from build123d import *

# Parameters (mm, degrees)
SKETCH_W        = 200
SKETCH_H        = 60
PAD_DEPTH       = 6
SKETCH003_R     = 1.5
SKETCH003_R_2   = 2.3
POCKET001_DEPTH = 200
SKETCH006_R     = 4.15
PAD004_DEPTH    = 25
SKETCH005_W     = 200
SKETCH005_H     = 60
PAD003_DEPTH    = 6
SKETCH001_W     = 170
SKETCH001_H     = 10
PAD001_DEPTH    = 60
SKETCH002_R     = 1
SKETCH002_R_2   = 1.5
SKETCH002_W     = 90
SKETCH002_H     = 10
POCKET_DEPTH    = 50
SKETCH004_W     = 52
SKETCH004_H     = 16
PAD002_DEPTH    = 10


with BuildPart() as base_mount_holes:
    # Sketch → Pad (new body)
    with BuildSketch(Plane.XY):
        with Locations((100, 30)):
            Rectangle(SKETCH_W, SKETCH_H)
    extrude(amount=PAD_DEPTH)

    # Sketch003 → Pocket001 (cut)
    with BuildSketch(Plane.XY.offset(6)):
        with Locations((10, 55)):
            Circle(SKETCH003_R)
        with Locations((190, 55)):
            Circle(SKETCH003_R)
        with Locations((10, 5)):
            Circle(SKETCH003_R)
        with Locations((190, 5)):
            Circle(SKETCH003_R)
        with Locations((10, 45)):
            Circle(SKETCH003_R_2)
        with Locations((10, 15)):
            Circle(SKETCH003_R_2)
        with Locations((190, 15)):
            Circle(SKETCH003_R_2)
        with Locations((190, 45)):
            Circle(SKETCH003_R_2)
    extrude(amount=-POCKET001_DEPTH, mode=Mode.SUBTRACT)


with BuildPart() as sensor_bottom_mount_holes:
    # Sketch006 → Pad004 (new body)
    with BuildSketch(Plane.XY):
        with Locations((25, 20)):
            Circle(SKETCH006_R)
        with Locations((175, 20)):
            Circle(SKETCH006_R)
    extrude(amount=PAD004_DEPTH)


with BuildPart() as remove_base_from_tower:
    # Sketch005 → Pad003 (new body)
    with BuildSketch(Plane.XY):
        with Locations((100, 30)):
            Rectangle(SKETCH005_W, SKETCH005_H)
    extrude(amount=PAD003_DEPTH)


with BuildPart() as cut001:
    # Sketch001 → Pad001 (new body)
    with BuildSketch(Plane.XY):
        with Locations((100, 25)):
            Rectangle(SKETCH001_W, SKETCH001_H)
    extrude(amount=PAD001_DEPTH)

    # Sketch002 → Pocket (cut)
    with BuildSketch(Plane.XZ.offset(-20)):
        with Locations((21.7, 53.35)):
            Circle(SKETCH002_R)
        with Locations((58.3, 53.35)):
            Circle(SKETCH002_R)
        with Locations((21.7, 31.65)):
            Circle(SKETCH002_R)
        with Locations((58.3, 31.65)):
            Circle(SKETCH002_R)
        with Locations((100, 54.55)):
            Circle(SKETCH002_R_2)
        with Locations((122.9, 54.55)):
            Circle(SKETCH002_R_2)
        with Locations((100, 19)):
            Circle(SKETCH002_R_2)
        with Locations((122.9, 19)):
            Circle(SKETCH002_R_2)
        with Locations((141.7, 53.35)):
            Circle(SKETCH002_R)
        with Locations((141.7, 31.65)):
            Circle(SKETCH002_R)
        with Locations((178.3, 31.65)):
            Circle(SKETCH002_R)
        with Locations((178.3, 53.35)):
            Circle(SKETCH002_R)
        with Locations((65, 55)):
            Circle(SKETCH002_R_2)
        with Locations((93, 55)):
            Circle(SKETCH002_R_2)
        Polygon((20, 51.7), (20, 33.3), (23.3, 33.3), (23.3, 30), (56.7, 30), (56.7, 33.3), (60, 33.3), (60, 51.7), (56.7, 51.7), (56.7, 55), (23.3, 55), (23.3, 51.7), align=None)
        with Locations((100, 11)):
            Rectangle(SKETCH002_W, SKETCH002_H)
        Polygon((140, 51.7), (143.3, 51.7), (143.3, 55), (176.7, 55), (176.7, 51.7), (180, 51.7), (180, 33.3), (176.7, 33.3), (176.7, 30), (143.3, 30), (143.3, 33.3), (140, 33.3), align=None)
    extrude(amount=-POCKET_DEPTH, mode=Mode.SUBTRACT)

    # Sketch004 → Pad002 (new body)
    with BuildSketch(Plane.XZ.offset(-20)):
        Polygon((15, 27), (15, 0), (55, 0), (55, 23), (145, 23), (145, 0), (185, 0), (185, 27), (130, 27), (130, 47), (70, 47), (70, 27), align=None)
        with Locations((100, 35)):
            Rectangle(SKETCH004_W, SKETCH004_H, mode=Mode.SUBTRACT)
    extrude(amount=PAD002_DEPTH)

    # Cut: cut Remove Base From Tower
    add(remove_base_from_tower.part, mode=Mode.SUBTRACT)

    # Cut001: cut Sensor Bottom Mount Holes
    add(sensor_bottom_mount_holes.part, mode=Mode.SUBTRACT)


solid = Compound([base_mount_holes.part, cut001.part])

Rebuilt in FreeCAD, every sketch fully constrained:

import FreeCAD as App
import Part
import Sketcher


def add_polygon(sketch, points):
    """Adds a closed chain of lines whose ends are joined by coincident constraints."""
    first, n = sketch.GeometryCount, len(points)
    for a, b in zip(points, points[1:] + points[:1]):
        sketch.addGeometry(Part.LineSegment(App.Vector(*a, 0), App.Vector(*b, 0)), False)
    for i in range(n):
        sketch.addConstraint(Sketcher.Constraint("Coincident", first + i, 2, first + (i + 1) % n, 1))

doc = App.newDocument("Part")
params = doc.addObject("Spreadsheet::Sheet", "Params")
for row, (alias, value) in enumerate([
    ("sketch1_width", "200 mm"),
    ("sketch1_height", "60 mm"),
    ("pad1_length", "6 mm"),
    ("sketch2_diameter", "3 mm"),
    ("sketch2_diameter2", "4.6 mm"),
    ("pocket1_length", "200 mm"),
    ("sketch3_diameter", "8.3 mm"),
    ("pad2_length", "25 mm"),
    ("sketch4_width", "200 mm"),
    ("sketch4_height", "60 mm"),
    ("pad3_length", "6 mm"),
    ("sketch5_width", "170 mm"),
    ("sketch5_height", "10 mm"),
    ("pad4_length", "60 mm"),
    ("sketch6_diameter", "2 mm"),
    ("sketch6_diameter2", "3 mm"),
    ("sketch6_width", "90 mm"),
    ("sketch6_height", "10 mm"),
    ("sketch6_width2", "3.3 mm"),
    ("pocket2_length", "50 mm"),
    ("sketch7_width", "40 mm"),
    ("sketch7_width2", "90 mm"),
    ("sketch7_width3", "55 mm"),
    ("sketch7_width4", "52 mm"),
    ("sketch7_height", "27 mm"),
    ("pad5_length", "10 mm"),
], start=1):
    params.set(f"A{row}", alias)
    params.set(f"B{row}", "=" + value)
    params.setAlias(f"B{row}", alias)

body = doc.addObject("PartDesign::Body", "Body")

sketch1 = doc.addObject("Sketcher::SketchObject", "Sketch")
body.addObject(sketch1)
sketch1.AttachmentSupport = (doc.XY_Plane, [""])
sketch1.MapMode = "FlatFace"
add_polygon(sketch1, [(0, 60), (0, 0), (200, 0), (200, 60)])
sketch1.addConstraint([
    Sketcher.Constraint("Vertical", 0),
    Sketcher.Constraint("Horizontal", 1),
    Sketcher.Constraint("Vertical", 2),
    Sketcher.Constraint("Horizontal", 3),
    Sketcher.Constraint("Coincident", 0, 2, -1, 1),
    Sketcher.Constraint("DistanceX", 1, 1, 1, 2, 200.0),
    Sketcher.Constraint("DistanceY", 0, 2, 0, 1, 60.0),
])
sketch1.setExpression("Constraints[9]", "Params.sketch1_width")
sketch1.setExpression("Constraints[10]", "Params.sketch1_height")
pad1 = doc.addObject("PartDesign::Pad", "Pad")
body.addObject(pad1)
pad1.Profile = sketch1
pad1.setExpression("Length", "Params.pad1_length")

sketch2 = doc.addObject("Sketcher::SketchObject", "Sketch001")
body.addObject(sketch2)
sketch2.AttachmentSupport = (doc.XY_Plane, [""])
sketch2.MapMode = "FlatFace"
sketch2.AttachmentOffset = App.Placement(App.Vector(0, 0, 6), App.Rotation())
sketch2.addGeometry([
    Part.Circle(App.Vector(10, 55, 0), App.Vector(0, 0, 1), 1.5),
    Part.Circle(App.Vector(190, 55, 0), App.Vector(0, 0, 1), 1.5),
    Part.Circle(App.Vector(10, 5, 0), App.Vector(0, 0, 1), 1.5),
    Part.Circle(App.Vector(190, 5, 0), App.Vector(0, 0, 1), 1.5),
    Part.Circle(App.Vector(10, 45, 0), App.Vector(0, 0, 1), 2.3),
    Part.Circle(App.Vector(10, 15, 0), App.Vector(0, 0, 1), 2.3),
    Part.Circle(App.Vector(190, 15, 0), App.Vector(0, 0, 1), 2.3),
    Part.Circle(App.Vector(190, 45, 0), App.Vector(0, 0, 1), 2.3),
], False)
sketch2.addConstraint([
    Sketcher.Constraint("Equal", 0, 1),
    Sketcher.Constraint("Equal", 1, 2),
    Sketcher.Constraint("Equal", 2, 3),
    Sketcher.Constraint("Equal", 4, 5),
    Sketcher.Constraint("Equal", 5, 6),
    Sketcher.Constraint("Equal", 6, 7),
    Sketcher.Constraint("Horizontal", 0, 3, 1, 3),
    Sketcher.Constraint("Horizontal", 2, 3, 3, 3),
    Sketcher.Constraint("Horizontal", 5, 3, 6, 3),
    Sketcher.Constraint("Horizontal", 4, 3, 7, 3),
    Sketcher.Constraint("Vertical", 0, 3, 2, 3),
    Sketcher.Constraint("Vertical", 1, 3, 3, 3),
    Sketcher.Constraint("Vertical", 2, 3, 4, 3),
    Sketcher.Constraint("Vertical", 4, 3, 5, 3),
    Sketcher.Constraint("Vertical", 3, 3, 6, 3),
    Sketcher.Constraint("Vertical", 6, 3, 7, 3),
    Sketcher.Constraint("Diameter", 0, 3.0),
    Sketcher.Constraint("Diameter", 4, 4.6),
    Sketcher.Constraint("DistanceX", -1, 1, 0, 3, 10.0),
    Sketcher.Constraint("DistanceY", -1, 1, 0, 3, 55.0),
    Sketcher.Constraint("DistanceX", -1, 1, 1, 3, 190.0),
    Sketcher.Constraint("DistanceY", -1, 1, 2, 3, 5.0),
    Sketcher.Constraint("DistanceY", -1, 1, 4, 3, 45.0),
    Sketcher.Constraint("DistanceY", -1, 1, 5, 3, 15.0),
])
sketch2.setExpression("Constraints[16]", "Params.sketch2_diameter")
sketch2.setExpression("Constraints[17]", "Params.sketch2_diameter2")
pocket1 = doc.addObject("PartDesign::Pocket", "Pocket")
body.addObject(pocket1)
pocket1.Profile = sketch2
pocket1.setExpression("Length", "Params.pocket1_length")
body2 = doc.addObject("PartDesign::Body", "Body001")
body2.AllowCompound = True

sketch3 = doc.addObject("Sketcher::SketchObject", "Sketch002")
body2.addObject(sketch3)
sketch3.AttachmentSupport = (doc.getObject("XY_Plane001"), [""])
sketch3.MapMode = "FlatFace"
sketch3.addGeometry([
    Part.Circle(App.Vector(25, 20, 0), App.Vector(0, 0, 1), 4.2),
    Part.Circle(App.Vector(175, 20, 0), App.Vector(0, 0, 1), 4.2),
], False)
sketch3.addConstraint([
    Sketcher.Constraint("Equal", 0, 1),
    Sketcher.Constraint("Horizontal", 0, 3, 1, 3),
    Sketcher.Constraint("Diameter", 0, 8.3),
    Sketcher.Constraint("DistanceX", -1, 1, 0, 3, 25.0),
    Sketcher.Constraint("DistanceY", -1, 1, 0, 3, 20.0),
    Sketcher.Constraint("DistanceX", -1, 1, 1, 3, 175.0),
])
sketch3.setExpression("Constraints[2]", "Params.sketch3_diameter")
pad2 = doc.addObject("PartDesign::Pad", "Pad001")
body2.addObject(pad2)
pad2.Profile = sketch3
pad2.setExpression("Length", "Params.pad2_length")
body3 = doc.addObject("PartDesign::Body", "Body002")

sketch4 = doc.addObject("Sketcher::SketchObject", "Sketch003")
body3.addObject(sketch4)
sketch4.AttachmentSupport = (doc.getObject("XY_Plane002"), [""])
sketch4.MapMode = "FlatFace"
add_polygon(sketch4, [(0, 60), (0, 0), (200, 0), (200, 60)])
sketch4.addConstraint([
    Sketcher.Constraint("Vertical", 0),
    Sketcher.Constraint("Horizontal", 1),
    Sketcher.Constraint("Vertical", 2),
    Sketcher.Constraint("Horizontal", 3),
    Sketcher.Constraint("Coincident", 0, 2, -1, 1),
    Sketcher.Constraint("DistanceX", 1, 1, 1, 2, 200.0),
    Sketcher.Constraint("DistanceY", 0, 2, 0, 1, 60.0),
])
sketch4.setExpression("Constraints[9]", "Params.sketch4_width")
sketch4.setExpression("Constraints[10]", "Params.sketch4_height")
pad3 = doc.addObject("PartDesign::Pad", "Pad002")
body3.addObject(pad3)
pad3.Profile = sketch4
pad3.setExpression("Length", "Params.pad3_length")
body4 = doc.addObject("PartDesign::Body", "Body003")

sketch5 = doc.addObject("Sketcher::SketchObject", "Sketch004")
body4.addObject(sketch5)
sketch5.AttachmentSupport = (doc.getObject("XY_Plane003"), [""])
sketch5.MapMode = "FlatFace"
add_polygon(sketch5, [(15, 30), (15, 20), (185, 20), (185, 30)])
sketch5.addConstraint([
    Sketcher.Constraint("Vertical", 0),
    Sketcher.Constraint("Horizontal", 1),
    Sketcher.Constraint("Vertical", 2),
    Sketcher.Constraint("Horizontal", 3),
    Sketcher.Constraint("DistanceX", 1, 1, 1, 2, 170.0),
    Sketcher.Constraint("DistanceY", 0, 2, 0, 1, 10.0),
    Sketcher.Constraint("DistanceX", -1, 1, 0, 2, 15.0),
    Sketcher.Constraint("DistanceY", -1, 1, 0, 2, 20.0),
])
sketch5.setExpression("Constraints[8]", "Params.sketch5_width")
sketch5.setExpression("Constraints[9]", "Params.sketch5_height")
pad4 = doc.addObject("PartDesign::Pad", "Pad003")
body4.addObject(pad4)
pad4.Profile = sketch5
pad4.setExpression("Length", "Params.pad4_length")

sketch6 = doc.addObject("Sketcher::SketchObject", "Sketch005")
body4.addObject(sketch6)
sketch6.AttachmentSupport = (doc.getObject("XZ_Plane003"), [""])
sketch6.MapMode = "FlatFace"
sketch6.AttachmentOffset = App.Placement(App.Vector(0, 0, -20), App.Rotation())
sketch6.addGeometry(Part.Circle(App.Vector(21.7, 53.4, 0), App.Vector(0, 0, 1), 1), False)
sketch6.addGeometry(Part.Circle(App.Vector(58.3, 53.4, 0), App.Vector(0, 0, 1), 1), False)
sketch6.addGeometry(Part.Circle(App.Vector(21.7, 31.6, 0), App.Vector(0, 0, 1), 1), False)
sketch6.addGeometry(Part.Circle(App.Vector(58.3, 31.6, 0), App.Vector(0, 0, 1), 1), False)
sketch6.addGeometry(Part.Circle(App.Vector(100, 54.5, 0), App.Vector(0, 0, 1), 1.5), False)
sketch6.addGeometry(Part.Circle(App.Vector(122.9, 54.5, 0), App.Vector(0, 0, 1), 1.5), False)
sketch6.addGeometry(Part.Circle(App.Vector(100, 19, 0), App.Vector(0, 0, 1), 1.5), False)
sketch6.addGeometry(Part.Circle(App.Vector(122.9, 19, 0), App.Vector(0, 0, 1), 1.5), False)
sketch6.addGeometry(Part.Circle(App.Vector(141.7, 53.4, 0), App.Vector(0, 0, 1), 1), False)
sketch6.addGeometry(Part.Circle(App.Vector(141.7, 31.6, 0), App.Vector(0, 0, 1), 1), False)
sketch6.addGeometry(Part.Circle(App.Vector(178.3, 31.6, 0), App.Vector(0, 0, 1), 1), False)
sketch6.addGeometry(Part.Circle(App.Vector(178.3, 53.4, 0), App.Vector(0, 0, 1), 1), False)
sketch6.addGeometry(Part.Circle(App.Vector(65, 55, 0), App.Vector(0, 0, 1), 1.5), False)
sketch6.addGeometry(Part.Circle(App.Vector(93, 55, 0), App.Vector(0, 0, 1), 1.5), False)
add_polygon(sketch6, [(20, 51.7), (20, 33.3), (23.3, 33.3), (23.3, 30), (56.7, 30), (56.7, 33.3), (60, 33.3), (60, 51.7), (56.7, 51.7), (56.7, 55), (23.3, 55), (23.3, 51.7)])
add_polygon(sketch6, [(55, 16), (55, 6), (145, 6), (145, 16)])
add_polygon(sketch6, [(143.3, 51.7), (140, 51.7), (140, 33.3), (143.3, 33.3), (143.3, 30), (176.7, 30), (176.7, 33.3), (180, 33.3), (180, 51.7), (176.7, 51.7), (176.7, 55), (143.3, 55)])
sketch6.addConstraint([
    Sketcher.Constraint("Vertical", 14),
    Sketcher.Constraint("Horizontal", 15),
    Sketcher.Constraint("Vertical", 16),
    Sketcher.Constraint("Horizontal", 17),
    Sketcher.Constraint("Vertical", 18),
    Sketcher.Constraint("Horizontal", 19),
    Sketcher.Constraint("Vertical", 20),
    Sketcher.Constraint("Horizontal", 21),
    Sketcher.Constraint("Vertical", 22),
    Sketcher.Constraint("Horizontal", 23),
    Sketcher.Constraint("Vertical", 24),
    Sketcher.Constraint("Horizontal", 25),
    Sketcher.Constraint("Vertical", 26),
    Sketcher.Constraint("Horizontal", 27),
    Sketcher.Constraint("Vertical", 28),
    Sketcher.Constraint("Horizontal", 29),
    Sketcher.Constraint("Horizontal", 30),
    Sketcher.Constraint("Vertical", 31),
    Sketcher.Constraint("Horizontal", 32),
    Sketcher.Constraint("Vertical", 33),
    Sketcher.Constraint("Horizontal", 34),
    Sketcher.Constraint("Vertical", 35),
    Sketcher.Constraint("Horizontal", 36),
    Sketcher.Constraint("Vertical", 37),
    Sketcher.Constraint("Horizontal", 38),
    Sketcher.Constraint("Vertical", 39),
    Sketcher.Constraint("Horizontal", 40),
    Sketcher.Constraint("Vertical", 41),
    Sketcher.Constraint("Equal", 0, 1),
    Sketcher.Constraint("Equal", 1, 2),
    Sketcher.Constraint("Equal", 2, 3),
    Sketcher.Constraint("Equal", 4, 5),
    Sketcher.Constraint("Equal", 5, 6),
    Sketcher.Constraint("Equal", 6, 7),
    Sketcher.Constraint("Equal", 3, 8),
    Sketcher.Constraint("Equal", 8, 9),
    Sketcher.Constraint("Equal", 9, 10),
    Sketcher.Constraint("Equal", 10, 11),
    Sketcher.Constraint("Equal", 7, 12),
    Sketcher.Constraint("Equal", 12, 13),
    Sketcher.Constraint("Horizontal", 0, 3, 1, 3),
    Sketcher.Constraint("Horizontal", 2, 3, 3, 3),
    Sketcher.Constraint("Horizontal", 4, 3, 5, 3),
    Sketcher.Constraint("Horizontal", 6, 3, 7, 3),
    Sketcher.Constraint("Horizontal", 1, 3, 8, 3),
    Sketcher.Constraint("Horizontal", 3, 3, 9, 3),
    Sketcher.Constraint("Horizontal", 9, 3, 10, 3),
    Sketcher.Constraint("Horizontal", 8, 3, 11, 3),
    Sketcher.Constraint("Horizontal", 12, 3, 13, 3),
    Sketcher.Constraint("Horizontal", 15, 2, 18, 2),
    Sketcher.Constraint("Horizontal", 13, 3, 22, 2),
    Sketcher.Constraint("Horizontal", 21, 2, 24, 2),
    Sketcher.Constraint("Horizontal", 25, 2, 30, 2),
    Sketcher.Constraint("Horizontal", 19, 2, 31, 2),
    Sketcher.Constraint("Horizontal", 17, 2, 33, 2),
    Sketcher.Constraint("Horizontal", 32, 2, 35, 2),
    Sketcher.Constraint("Horizontal", 30, 2, 37, 2),
    Sketcher.Constraint("Horizontal", 23, 2, 39, 2),
    Sketcher.Constraint("Vertical", 0, 3, 2, 3),
    Sketcher.Constraint("Vertical", 1, 3, 3, 3),
    Sketcher.Constraint("Vertical", 4, 3, 6, 3),
    Sketcher.Constraint("Vertical", 5, 3, 7, 3),
    Sketcher.Constraint("Vertical", 8, 3, 9, 3),
    Sketcher.Constraint("Vertical", 10, 3, 11, 3),
    Sketcher.Constraint("Vertical", 18, 2, 21, 2),
    Sketcher.Constraint("Vertical", 16, 2, 23, 2),
    Sketcher.Constraint("Vertical", 35, 2, 38, 2),
    Sketcher.Constraint("Vertical", 33, 2, 40, 2),
    Sketcher.Constraint("Equal", 15, 19),
    Sketcher.Constraint("Equal", 25, 30),
    Sketcher.Constraint("Equal", 23, 34),
    Sketcher.Constraint("Equal", 32, 36),
    Sketcher.Constraint("Equal", 38, 16),
    Sketcher.Constraint("Equal", 18, 22),
    Sketcher.Constraint("Diameter", 0, 2.0),
    Sketcher.Constraint("Diameter", 4, 3.0),
    Sketcher.Constraint("DistanceX", 27, 1, 27, 2, 90.0),
    Sketcher.Constraint("DistanceY", 26, 2, 26, 1, 10.0),
    Sketcher.Constraint("DistanceX", 15, 1, 15, 2, 3.3),
    Sketcher.Constraint("DistanceX", 17, 1, 17, 2, 33.4),
    Sketcher.Constraint("DistanceY", 14, 2, 14, 1, 18.4),
    Sketcher.Constraint("DistanceX", -1, 1, 4, 3, 100.0),
    Sketcher.Constraint("DistanceY", -1, 1, 6, 3, 19.0),
    Sketcher.Constraint("DistanceX", -1, 1, 12, 3, 65.0),
    Sketcher.Constraint("DistanceY", -1, 1, 12, 3, 55.0),
    Sketcher.Constraint("DistanceX", -1, 1, 13, 3, 93.0),
    Sketcher.Constraint("DistanceX", -1, 1, 14, 2, 20.0),
    Sketcher.Constraint("DistanceX", -1, 1, 26, 2, 55.0),
    Sketcher.Constraint("DistanceY", -1, 1, 26, 2, 6.0),
    Sketcher.Constraint("DistanceX", -1, 1, 30, 2, 140.0),
    Sketcher.Constraint("DistanceX", 15, 2, 3, 3, 35.0),
    Sketcher.Constraint("DistanceX", -1, 1, 0, 3, 21.7),
    Sketcher.Constraint("DistanceX", -1, 1, 5, 3, 122.9),
    Sketcher.Constraint("DistanceX", -1, 1, 8, 3, 141.7),
    Sketcher.Constraint("DistanceX", -1, 1, 10, 3, 178.3),
    Sketcher.Constraint("DistanceY", 2, 3, 0, 3, 21.7),
    Sketcher.Constraint("DistanceY", 1, 3, 4, 3, 1.2),
    Sketcher.Constraint("DistanceY", -1, 1, 0, 3, 53.35),
])
sketch6.setExpression("Constraints[102]", "Params.sketch6_diameter")
sketch6.setExpression("Constraints[103]", "Params.sketch6_diameter2")
sketch6.setExpression("Constraints[104]", "Params.sketch6_width")
sketch6.setExpression("Constraints[105]", "Params.sketch6_height")
sketch6.setExpression("Constraints[106]", "Params.sketch6_width2")
pocket2 = doc.addObject("PartDesign::Pocket", "Pocket001")
body4.addObject(pocket2)
pocket2.Profile = sketch6
pocket2.setExpression("Length", "Params.pocket2_length")

sketch7 = doc.addObject("Sketcher::SketchObject", "Sketch006")
body4.addObject(sketch7)
sketch7.AttachmentSupport = (doc.getObject("XZ_Plane003"), [""])
sketch7.MapMode = "FlatFace"
sketch7.AttachmentOffset = App.Placement(App.Vector(0, 0, -20), App.Rotation())
add_polygon(sketch7, [(15, 27), (15, 0), (55, 0), (55, 23), (145, 23), (145, 0), (185, 0), (185, 27), (130, 27), (130, 47), (70, 47), (70, 27)])
add_polygon(sketch7, [(126, 27), (74, 27), (74, 43), (126, 43)])
sketch7.addConstraint([
    Sketcher.Constraint("Vertical", 0),
    Sketcher.Constraint("Horizontal", 1),
    Sketcher.Constraint("Vertical", 2),
    Sketcher.Constraint("Horizontal", 3),
    Sketcher.Constraint("Vertical", 4),
    Sketcher.Constraint("Horizontal", 5),
    Sketcher.Constraint("Vertical", 6),
    Sketcher.Constraint("Horizontal", 7),
    Sketcher.Constraint("Vertical", 8),
    Sketcher.Constraint("Horizontal", 9),
    Sketcher.Constraint("Vertical", 10),
    Sketcher.Constraint("Horizontal", 11),
    Sketcher.Constraint("Horizontal", 12),
    Sketcher.Constraint("Vertical", 13),
    Sketcher.Constraint("Horizontal", 14),
    Sketcher.Constraint("Vertical", 15),
    Sketcher.Constraint("PointOnObject", 0, 2, -1),
    Sketcher.Constraint("PointOnObject", 4, 2, -1),
    Sketcher.Constraint("Horizontal", 7, 2, 10, 2),
    Sketcher.Constraint("Horizontal", 11, 2, 12, 2),
    Sketcher.Constraint("Equal", 1, 5),
    Sketcher.Constraint("Equal", 7, 11),
    Sketcher.Constraint("DistanceX", 1, 1, 1, 2, 40.0),
    Sketcher.Constraint("DistanceX", 3, 1, 3, 2, 90.0),
    Sketcher.Constraint("DistanceX", 7, 2, 7, 1, 55.0),
    Sketcher.Constraint("DistanceX", 12, 2, 12, 1, 52.0),
    Sketcher.Constraint("DistanceY", 0, 2, 0, 1, 27.0),
    Sketcher.Constraint("DistanceY", 2, 1, 2, 2, 23.0),
    Sketcher.Constraint("DistanceY", 8, 1, 8, 2, 20.0),
    Sketcher.Constraint("DistanceY", 13, 1, 13, 2, 16.0),
    Sketcher.Constraint("DistanceX", -1, 1, 0, 2, 15.0),
    Sketcher.Constraint("DistanceX", -1, 1, 12, 2, 74.0),
])
sketch7.setExpression("Constraints[38]", "Params.sketch7_width")
sketch7.setExpression("Constraints[39]", "Params.sketch7_width2")
sketch7.setExpression("Constraints[40]", "Params.sketch7_width3")
sketch7.setExpression("Constraints[41]", "Params.sketch7_width4")
sketch7.setExpression("Constraints[42]", "Params.sketch7_height")
pad5 = doc.addObject("PartDesign::Pad", "Pad004")
body4.addObject(pad5)
pad5.Profile = sketch7
pad5.setExpression("Length", "Params.pad5_length")
doc.recompute()

boolean = doc.addObject("PartDesign::Boolean", "Boolean")
body4.addObject(boolean)
boolean.Type = "Cut"
boolean.addObjects([body3])
doc.recompute()

boolean2 = doc.addObject("PartDesign::Boolean", "Boolean001")
body4.addObject(boolean2)
boolean2.Type = "Cut"
boolean2.addObjects([body2])

doc.recompute()
